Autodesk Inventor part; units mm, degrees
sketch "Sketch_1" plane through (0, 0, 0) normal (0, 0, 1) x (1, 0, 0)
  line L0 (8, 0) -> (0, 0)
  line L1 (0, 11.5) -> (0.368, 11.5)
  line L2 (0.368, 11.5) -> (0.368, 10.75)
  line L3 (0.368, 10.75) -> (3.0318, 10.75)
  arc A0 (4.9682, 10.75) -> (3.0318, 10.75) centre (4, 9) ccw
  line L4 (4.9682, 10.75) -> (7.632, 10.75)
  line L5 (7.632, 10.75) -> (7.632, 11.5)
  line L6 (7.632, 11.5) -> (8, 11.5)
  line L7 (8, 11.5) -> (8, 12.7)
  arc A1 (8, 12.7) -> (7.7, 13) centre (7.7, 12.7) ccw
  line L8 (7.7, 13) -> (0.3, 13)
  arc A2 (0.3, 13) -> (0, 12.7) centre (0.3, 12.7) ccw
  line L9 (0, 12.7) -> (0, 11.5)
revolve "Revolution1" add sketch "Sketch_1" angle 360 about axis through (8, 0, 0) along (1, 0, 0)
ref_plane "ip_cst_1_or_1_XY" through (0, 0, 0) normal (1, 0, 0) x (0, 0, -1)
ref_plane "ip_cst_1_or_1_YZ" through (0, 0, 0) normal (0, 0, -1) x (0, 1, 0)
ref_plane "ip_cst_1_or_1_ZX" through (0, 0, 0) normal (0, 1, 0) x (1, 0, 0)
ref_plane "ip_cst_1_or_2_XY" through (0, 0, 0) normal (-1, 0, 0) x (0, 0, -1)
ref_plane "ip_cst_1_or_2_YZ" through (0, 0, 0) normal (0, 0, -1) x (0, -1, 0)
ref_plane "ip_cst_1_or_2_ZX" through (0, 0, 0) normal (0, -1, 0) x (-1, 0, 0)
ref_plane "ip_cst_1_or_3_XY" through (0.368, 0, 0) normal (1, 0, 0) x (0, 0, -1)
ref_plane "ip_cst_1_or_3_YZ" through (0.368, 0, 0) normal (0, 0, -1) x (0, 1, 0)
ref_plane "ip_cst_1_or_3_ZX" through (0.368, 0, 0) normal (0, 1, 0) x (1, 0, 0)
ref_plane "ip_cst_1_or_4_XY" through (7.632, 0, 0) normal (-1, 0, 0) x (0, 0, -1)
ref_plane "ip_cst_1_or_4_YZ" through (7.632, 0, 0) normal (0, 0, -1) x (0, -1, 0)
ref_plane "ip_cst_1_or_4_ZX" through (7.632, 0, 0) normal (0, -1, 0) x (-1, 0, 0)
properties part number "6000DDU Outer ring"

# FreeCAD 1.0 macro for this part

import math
import FreeCAD as App
import Part
import Sketcher
from FreeCAD import Vector

doc = App.newDocument("Part")
params = doc.addObject("Spreadsheet::Sheet", "Params")
for row, (alias, value) in enumerate([
    ("sketch1_radius", "2 mm"),
    ("sketch1_radius2", "0.3 mm"),
    ("sketch1_width", "7.4 mm"),
    ("sketch1_height", "1.2 mm"),
    ("sketch1_height2", "0.75 mm"),
    ("revolution_angle", "360 deg"),
], start=1):
    params.set(f"A{row}", alias)
    params.set(f"B{row}", "=" + value)
    params.setAlias(f"B{row}", alias)

body = doc.addObject("PartDesign::Body", "Body")

# Sketch on XY plane
sketch1 = body.newObject("Sketcher::SketchObject", "Sketch")
sketch1.AttachmentSupport = (doc.getObject("XY_Plane"), [""])
sketch1.MapMode = "FlatFace"
sketch1.addGeometry([
    Part.LineSegment(Vector(0, 12.7, 0), Vector(0, 11.5, 0)),  # 0
    Part.LineSegment(Vector(0, 11.5, 0), Vector(0.368, 11.5, 0)),  # 1
    Part.LineSegment(Vector(0.368, 11.5, 0), Vector(0.368, 10.75, 0)),  # 2
    Part.LineSegment(Vector(0.368, 10.75, 0), Vector(3.0318, 10.75, 0)),  # 3
    Part.ArcOfCircle(Part.Circle(Vector(4, 9, 0), Vector(0, 0, 1), 1.999978), math.radians(61.046125), math.radians(118.953875)),  # 4
    Part.LineSegment(Vector(4.9682, 10.75, 0), Vector(7.632, 10.75, 0)),  # 5
    Part.LineSegment(Vector(7.632, 10.75, 0), Vector(7.632, 11.5, 0)),  # 6
    Part.LineSegment(Vector(7.632, 11.5, 0), Vector(8, 11.5, 0)),  # 7
    Part.LineSegment(Vector(8, 11.5, 0), Vector(8, 12.7, 0)),  # 8
    Part.ArcOfCircle(Part.Circle(Vector(7.7, 12.7, 0), Vector(0, 0, 1), 0.3), math.radians(0), math.radians(90)),  # 9
    Part.LineSegment(Vector(7.7, 13, 0), Vector(0.3, 13, 0)),  # 10
    Part.ArcOfCircle(Part.Circle(Vector(0.3, 12.7, 0), Vector(0, 0, 1), 0.3), math.radians(90), math.radians(180)),  # 11
], False)
sketch1.addConstraint([
    Sketcher.Constraint("Coincident", 0, 2, 1, 1),
    Sketcher.Constraint("Coincident", 1, 2, 2, 1),
    Sketcher.Constraint("Coincident", 2, 2, 3, 1),
    Sketcher.Constraint("Coincident", 3, 2, 4, 2),
    Sketcher.Constraint("Coincident", 4, 1, 5, 1),
    Sketcher.Constraint("Coincident", 5, 2, 6, 1),
    Sketcher.Constraint("Coincident", 6, 2, 7, 1),
    Sketcher.Constraint("Coincident", 7, 2, 8, 1),
    Sketcher.Constraint("Tangent", 8, 2, 9, 1),
    Sketcher.Constraint("Tangent", 9, 2, 10, 1),
    Sketcher.Constraint("Tangent", 10, 2, 11, 1),
    Sketcher.Constraint("Tangent", 11, 2, 0, 1),
    Sketcher.Constraint("Vertical", 0),
    Sketcher.Constraint("Horizontal", 1),
    Sketcher.Constraint("Vertical", 2),
    Sketcher.Constraint("Horizontal", 3),
    Sketcher.Constraint("Horizontal", 5),
    Sketcher.Constraint("Vertical", 6),
    Sketcher.Constraint("Horizontal", 7),
    Sketcher.Constraint("Vertical", 8),
    Sketcher.Constraint("Horizontal", 10),
    Sketcher.Constraint("Equal", 9, 11),
    Sketcher.Constraint("PointOnObject", 0, 2, -2),
    Sketcher.Constraint("Horizontal", 3, 2, 4, 1),
    Sketcher.Constraint("Horizontal", 1, 2, 6, 2),
    Sketcher.Constraint("Equal", 3, 5),
    Sketcher.Constraint("Equal", 1, 7),
    Sketcher.Constraint("Radius", 4, 2.0),
    Sketcher.Constraint("Radius", 9, 0.3),
    Sketcher.Constraint("DistanceX", 10, 2, 10, 1, 7.4),
    Sketcher.Constraint("DistanceY", 0, 2, 0, 1, 1.2),
    Sketcher.Constraint("DistanceY", -1, 1, 4, 3, 9.0),
    Sketcher.Constraint("DistanceY", -1, 1, 9, 2, 13.0),
    Sketcher.Constraint("DistanceY", 2, 2, 2, 1, 0.75),
    Sketcher.Constraint("DistanceX", 1, 1, 1, 2, 0.368),
])
sketch1.setExpression("Constraints[27]", "Params.sketch1_radius")
sketch1.setExpression("Constraints[28]", "Params.sketch1_radius2")
sketch1.setExpression("Constraints[29]", "Params.sketch1_width")
sketch1.setExpression("Constraints[30]", "Params.sketch1_height")
sketch1.setExpression("Constraints[33]", "Params.sketch1_height2")
revolution = body.newObject("PartDesign::Revolution", "Revolution")
revolution.Profile = sketch1
revolution.ReferenceAxis = (sketch1, ["H_Axis"])
revolution.setExpression("Angle", "Params.revolution_angle")

doc.recompute()
